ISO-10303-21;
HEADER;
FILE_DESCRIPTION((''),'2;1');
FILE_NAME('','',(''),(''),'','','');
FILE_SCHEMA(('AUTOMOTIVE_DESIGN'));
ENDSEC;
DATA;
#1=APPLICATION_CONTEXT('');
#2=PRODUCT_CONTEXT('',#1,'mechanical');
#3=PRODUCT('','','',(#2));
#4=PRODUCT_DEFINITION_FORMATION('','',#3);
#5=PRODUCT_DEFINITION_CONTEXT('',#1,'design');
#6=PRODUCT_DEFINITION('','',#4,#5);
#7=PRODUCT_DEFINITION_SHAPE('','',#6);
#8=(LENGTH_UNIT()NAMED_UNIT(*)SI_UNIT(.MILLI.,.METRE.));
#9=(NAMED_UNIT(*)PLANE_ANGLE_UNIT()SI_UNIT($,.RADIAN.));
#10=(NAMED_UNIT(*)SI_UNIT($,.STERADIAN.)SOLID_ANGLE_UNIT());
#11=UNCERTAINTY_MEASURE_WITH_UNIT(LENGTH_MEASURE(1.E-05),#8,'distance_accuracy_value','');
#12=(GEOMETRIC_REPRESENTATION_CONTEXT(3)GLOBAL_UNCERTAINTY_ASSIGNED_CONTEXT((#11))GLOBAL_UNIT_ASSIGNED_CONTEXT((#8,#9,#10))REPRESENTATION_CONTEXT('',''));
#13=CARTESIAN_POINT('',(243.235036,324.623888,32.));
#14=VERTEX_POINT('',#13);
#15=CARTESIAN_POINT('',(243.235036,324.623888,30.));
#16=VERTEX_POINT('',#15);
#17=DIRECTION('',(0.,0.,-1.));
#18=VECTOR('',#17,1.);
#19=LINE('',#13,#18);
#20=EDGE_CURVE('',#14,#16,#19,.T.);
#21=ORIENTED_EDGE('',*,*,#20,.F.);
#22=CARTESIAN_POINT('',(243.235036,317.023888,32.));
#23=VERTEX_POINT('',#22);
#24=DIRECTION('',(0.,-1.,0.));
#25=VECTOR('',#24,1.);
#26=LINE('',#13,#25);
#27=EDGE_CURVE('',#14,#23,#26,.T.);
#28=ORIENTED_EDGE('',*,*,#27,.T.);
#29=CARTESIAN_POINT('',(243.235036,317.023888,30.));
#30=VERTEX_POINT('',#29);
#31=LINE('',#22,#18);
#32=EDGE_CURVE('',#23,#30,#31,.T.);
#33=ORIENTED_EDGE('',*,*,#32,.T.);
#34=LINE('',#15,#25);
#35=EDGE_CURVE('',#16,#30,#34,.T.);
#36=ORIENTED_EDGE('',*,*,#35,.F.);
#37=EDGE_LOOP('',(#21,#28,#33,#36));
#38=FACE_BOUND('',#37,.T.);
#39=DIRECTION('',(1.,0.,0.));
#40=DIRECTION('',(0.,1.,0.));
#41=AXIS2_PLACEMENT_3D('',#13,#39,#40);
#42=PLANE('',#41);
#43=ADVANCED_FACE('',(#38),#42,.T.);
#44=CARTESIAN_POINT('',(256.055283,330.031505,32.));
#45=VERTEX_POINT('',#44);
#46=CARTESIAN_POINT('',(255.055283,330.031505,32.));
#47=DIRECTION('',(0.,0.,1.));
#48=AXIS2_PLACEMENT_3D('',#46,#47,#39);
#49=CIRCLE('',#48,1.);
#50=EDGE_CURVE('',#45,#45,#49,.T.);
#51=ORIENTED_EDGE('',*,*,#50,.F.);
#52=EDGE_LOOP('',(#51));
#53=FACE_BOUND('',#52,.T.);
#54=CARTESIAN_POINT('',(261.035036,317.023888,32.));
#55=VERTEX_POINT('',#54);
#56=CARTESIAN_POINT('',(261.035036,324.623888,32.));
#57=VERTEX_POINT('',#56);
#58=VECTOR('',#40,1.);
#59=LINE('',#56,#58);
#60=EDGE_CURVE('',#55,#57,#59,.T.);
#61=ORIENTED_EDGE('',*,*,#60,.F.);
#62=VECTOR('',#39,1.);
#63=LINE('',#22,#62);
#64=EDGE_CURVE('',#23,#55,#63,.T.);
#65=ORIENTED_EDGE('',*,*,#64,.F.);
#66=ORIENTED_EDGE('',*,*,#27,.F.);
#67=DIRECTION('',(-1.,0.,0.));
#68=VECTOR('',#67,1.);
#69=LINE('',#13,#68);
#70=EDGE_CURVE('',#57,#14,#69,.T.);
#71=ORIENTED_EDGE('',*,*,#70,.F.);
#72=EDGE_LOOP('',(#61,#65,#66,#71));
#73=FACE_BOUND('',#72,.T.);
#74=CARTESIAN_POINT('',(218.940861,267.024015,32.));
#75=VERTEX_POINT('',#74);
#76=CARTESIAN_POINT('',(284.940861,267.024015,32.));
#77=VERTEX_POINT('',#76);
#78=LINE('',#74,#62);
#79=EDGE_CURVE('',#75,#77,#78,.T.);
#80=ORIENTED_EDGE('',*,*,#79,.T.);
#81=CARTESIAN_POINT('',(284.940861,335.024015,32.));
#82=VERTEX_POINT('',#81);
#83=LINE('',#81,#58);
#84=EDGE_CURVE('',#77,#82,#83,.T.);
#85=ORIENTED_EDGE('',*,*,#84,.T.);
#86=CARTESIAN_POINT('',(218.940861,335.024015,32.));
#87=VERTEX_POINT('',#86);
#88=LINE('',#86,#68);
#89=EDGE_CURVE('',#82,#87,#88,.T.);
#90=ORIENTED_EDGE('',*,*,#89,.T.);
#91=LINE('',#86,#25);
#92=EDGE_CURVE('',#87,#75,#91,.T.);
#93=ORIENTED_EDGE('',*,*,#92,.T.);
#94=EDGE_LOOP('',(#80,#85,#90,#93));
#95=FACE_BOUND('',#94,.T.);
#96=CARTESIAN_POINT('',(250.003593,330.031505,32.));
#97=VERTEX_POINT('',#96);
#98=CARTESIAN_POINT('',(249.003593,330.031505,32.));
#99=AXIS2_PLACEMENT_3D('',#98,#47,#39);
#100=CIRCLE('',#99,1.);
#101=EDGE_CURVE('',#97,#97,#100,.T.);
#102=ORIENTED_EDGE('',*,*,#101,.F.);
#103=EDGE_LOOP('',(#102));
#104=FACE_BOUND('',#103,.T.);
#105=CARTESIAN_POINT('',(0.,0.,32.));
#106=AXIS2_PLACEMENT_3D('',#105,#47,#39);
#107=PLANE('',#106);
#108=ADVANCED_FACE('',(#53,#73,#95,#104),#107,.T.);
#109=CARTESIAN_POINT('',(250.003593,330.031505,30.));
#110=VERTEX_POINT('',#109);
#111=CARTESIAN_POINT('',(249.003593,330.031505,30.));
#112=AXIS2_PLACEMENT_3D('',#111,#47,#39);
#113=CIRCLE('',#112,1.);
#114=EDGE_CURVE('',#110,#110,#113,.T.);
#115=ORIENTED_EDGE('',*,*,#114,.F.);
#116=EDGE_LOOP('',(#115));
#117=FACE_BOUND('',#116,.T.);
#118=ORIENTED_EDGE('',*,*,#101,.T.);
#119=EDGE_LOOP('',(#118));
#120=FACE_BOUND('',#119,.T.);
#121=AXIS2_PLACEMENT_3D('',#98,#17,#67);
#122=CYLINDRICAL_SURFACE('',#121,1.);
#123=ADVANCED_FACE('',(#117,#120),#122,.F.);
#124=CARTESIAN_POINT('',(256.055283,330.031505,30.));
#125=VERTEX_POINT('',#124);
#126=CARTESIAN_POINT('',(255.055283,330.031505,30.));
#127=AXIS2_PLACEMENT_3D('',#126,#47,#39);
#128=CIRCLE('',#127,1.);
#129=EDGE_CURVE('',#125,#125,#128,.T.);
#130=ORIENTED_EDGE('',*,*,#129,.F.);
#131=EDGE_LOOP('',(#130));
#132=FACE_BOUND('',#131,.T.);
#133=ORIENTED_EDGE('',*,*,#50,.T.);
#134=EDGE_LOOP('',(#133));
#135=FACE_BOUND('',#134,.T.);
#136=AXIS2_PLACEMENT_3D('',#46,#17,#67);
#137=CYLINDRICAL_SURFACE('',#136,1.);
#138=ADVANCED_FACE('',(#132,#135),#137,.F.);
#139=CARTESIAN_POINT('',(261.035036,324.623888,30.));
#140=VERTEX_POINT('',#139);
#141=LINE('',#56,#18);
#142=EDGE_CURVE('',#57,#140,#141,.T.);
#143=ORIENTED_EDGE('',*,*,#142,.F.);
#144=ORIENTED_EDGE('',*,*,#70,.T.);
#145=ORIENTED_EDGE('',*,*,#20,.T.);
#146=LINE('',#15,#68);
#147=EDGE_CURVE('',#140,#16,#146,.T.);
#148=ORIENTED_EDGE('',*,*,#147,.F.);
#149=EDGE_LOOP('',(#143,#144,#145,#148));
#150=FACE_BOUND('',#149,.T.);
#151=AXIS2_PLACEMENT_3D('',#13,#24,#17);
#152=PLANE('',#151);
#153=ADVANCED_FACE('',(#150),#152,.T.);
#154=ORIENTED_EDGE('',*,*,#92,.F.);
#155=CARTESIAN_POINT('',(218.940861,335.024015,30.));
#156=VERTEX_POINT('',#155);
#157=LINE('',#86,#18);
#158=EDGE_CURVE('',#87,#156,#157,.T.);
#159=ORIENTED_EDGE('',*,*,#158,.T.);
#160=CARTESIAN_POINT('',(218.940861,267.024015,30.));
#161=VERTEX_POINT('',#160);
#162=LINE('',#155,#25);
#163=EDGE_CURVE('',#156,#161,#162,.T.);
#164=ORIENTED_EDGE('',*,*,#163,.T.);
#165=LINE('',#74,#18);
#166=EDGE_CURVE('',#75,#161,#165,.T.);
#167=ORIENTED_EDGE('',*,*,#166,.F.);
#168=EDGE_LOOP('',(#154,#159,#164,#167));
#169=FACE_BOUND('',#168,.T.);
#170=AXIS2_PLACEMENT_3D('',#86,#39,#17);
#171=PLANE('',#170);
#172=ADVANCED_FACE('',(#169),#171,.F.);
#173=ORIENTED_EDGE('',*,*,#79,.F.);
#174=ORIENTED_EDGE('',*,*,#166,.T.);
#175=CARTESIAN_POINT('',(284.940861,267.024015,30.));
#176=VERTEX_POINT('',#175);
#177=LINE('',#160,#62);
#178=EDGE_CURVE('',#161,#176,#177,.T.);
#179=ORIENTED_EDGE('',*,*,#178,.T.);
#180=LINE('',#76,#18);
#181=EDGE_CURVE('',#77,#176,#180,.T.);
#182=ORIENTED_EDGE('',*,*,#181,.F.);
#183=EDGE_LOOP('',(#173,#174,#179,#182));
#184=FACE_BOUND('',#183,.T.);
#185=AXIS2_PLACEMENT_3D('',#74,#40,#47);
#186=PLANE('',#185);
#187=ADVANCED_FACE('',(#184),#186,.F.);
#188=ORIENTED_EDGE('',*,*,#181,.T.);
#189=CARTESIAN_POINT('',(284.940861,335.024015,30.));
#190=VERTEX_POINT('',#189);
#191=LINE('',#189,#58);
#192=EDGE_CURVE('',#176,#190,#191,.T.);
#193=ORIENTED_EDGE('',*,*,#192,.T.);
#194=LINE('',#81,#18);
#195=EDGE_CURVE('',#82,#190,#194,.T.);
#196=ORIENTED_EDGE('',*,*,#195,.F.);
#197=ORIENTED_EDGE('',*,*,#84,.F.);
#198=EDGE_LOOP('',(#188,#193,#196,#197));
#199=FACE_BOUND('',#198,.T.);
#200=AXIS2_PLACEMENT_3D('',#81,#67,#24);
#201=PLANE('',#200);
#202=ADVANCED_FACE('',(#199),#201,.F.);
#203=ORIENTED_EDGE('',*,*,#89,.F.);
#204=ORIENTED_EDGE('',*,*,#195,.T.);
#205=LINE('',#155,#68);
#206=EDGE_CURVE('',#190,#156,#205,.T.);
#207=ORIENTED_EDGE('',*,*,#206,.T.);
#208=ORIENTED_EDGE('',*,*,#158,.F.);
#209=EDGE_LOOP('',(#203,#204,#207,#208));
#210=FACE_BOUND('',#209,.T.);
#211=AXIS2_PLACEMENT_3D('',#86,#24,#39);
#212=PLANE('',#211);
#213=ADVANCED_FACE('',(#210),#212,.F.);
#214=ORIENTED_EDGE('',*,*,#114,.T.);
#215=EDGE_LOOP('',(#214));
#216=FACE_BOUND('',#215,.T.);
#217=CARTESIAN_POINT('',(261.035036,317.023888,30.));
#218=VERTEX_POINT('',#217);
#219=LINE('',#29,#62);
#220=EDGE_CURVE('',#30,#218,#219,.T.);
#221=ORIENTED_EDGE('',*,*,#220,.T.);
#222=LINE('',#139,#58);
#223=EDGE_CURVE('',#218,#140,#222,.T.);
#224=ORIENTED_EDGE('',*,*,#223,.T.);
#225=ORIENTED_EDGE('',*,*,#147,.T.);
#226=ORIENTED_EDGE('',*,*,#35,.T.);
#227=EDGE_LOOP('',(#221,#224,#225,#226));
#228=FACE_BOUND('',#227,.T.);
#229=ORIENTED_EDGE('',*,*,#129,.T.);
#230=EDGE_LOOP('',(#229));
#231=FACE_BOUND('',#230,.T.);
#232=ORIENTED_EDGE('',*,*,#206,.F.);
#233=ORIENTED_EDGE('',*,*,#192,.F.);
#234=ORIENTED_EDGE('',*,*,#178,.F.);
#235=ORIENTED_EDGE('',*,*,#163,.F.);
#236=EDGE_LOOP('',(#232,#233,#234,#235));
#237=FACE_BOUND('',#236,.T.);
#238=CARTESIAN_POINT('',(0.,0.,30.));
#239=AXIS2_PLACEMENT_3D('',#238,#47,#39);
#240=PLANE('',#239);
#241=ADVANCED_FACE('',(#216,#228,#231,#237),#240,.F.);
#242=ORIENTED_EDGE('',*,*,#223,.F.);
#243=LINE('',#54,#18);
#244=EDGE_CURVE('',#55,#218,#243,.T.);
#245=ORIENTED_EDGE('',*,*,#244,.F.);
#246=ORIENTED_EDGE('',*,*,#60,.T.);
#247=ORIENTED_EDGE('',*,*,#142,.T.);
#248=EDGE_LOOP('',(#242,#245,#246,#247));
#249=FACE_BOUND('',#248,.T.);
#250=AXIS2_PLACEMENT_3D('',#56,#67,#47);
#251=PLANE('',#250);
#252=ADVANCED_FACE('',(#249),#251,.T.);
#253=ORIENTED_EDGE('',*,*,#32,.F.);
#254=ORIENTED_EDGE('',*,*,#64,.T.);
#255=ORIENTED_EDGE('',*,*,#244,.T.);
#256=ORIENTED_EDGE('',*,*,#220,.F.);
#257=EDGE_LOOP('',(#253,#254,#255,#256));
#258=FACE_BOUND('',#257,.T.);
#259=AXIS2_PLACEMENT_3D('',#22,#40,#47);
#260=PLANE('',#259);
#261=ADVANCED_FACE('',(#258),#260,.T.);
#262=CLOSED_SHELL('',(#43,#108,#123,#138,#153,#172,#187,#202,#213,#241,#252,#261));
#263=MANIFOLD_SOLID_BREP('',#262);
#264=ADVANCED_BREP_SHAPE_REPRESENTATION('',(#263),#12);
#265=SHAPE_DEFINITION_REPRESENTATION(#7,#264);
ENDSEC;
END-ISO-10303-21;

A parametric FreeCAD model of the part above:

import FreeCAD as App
import Part
import Sketcher
Q = App.Units.Quantity

doc = App.newDocument("Part")
body = doc.addObject("PartDesign::Body", "Body")

sketch1 = doc.addObject("Sketcher::SketchObject", "Sketch")
body.addObject(sketch1)
sketch1.AttachmentSupport = (doc.XY_Plane, [""])
sketch1.MapMode = "FlatFace"
sketch1.AttachmentOffset = App.Placement(App.Vector(0, 0, 30), App.Rotation())
sketch1.addGeometry([
    Part.LineSegment(App.Vector(218.940861, 335.024015, 0), App.Vector(218.940861, 267.024015, 0)),
    Part.LineSegment(App.Vector(218.940861, 267.024015, 0), App.Vector(284.940861, 267.024015, 0)),
    Part.LineSegment(App.Vector(284.940861, 267.024015, 0), App.Vector(284.940861, 335.024015, 0)),
    Part.LineSegment(App.Vector(284.940861, 335.024015, 0), App.Vector(218.940861, 335.024015, 0)),
    Part.LineSegment(App.Vector(261.035036, 317.023888, 0), App.Vector(243.235036, 317.023888, 0)),
    Part.LineSegment(App.Vector(243.235036, 317.023888, 0), App.Vector(243.235036, 324.623888, 0)),
    Part.LineSegment(App.Vector(243.235036, 324.623888, 0), App.Vector(261.035036, 324.623888, 0)),
    Part.LineSegment(App.Vector(261.035036, 324.623888, 0), App.Vector(261.035036, 317.023888, 0)),
    Part.Circle(App.Vector(249.003593, 330.031505, 0), App.Vector(0, 0, 1), 1),
    Part.Circle(App.Vector(255.055283, 330.031505, 0), App.Vector(0, 0, 1), 1),
], False)
sketch1.addConstraint([
    Sketcher.Constraint("Coincident", 0, 2, 1, 1),
    Sketcher.Constraint("Coincident", 1, 2, 2, 1),
    Sketcher.Constraint("Coincident", 2, 2, 3, 1),
    Sketcher.Constraint("Coincident", 3, 2, 0, 1),
    Sketcher.Constraint("Coincident", 4, 2, 5, 1),
    Sketcher.Constraint("Coincident", 5, 2, 6, 1),
    Sketcher.Constraint("Coincident", 6, 2, 7, 1),
    Sketcher.Constraint("Coincident", 7, 2, 4, 1),
    Sketcher.Constraint("Vertical", 0),
    Sketcher.Constraint("Horizontal", 1),
    Sketcher.Constraint("Vertical", 2),
    Sketcher.Constraint("Horizontal", 3),
    Sketcher.Constraint("Horizontal", 4),
    Sketcher.Constraint("Vertical", 5),
    Sketcher.Constraint("Horizontal", 6),
    Sketcher.Constraint("Vertical", 7),
    Sketcher.Constraint("Equal", 8, 9),
    Sketcher.Constraint("Horizontal", 8, 3, 9, 3),
    Sketcher.Constraint("Diameter", 8, Q("2 mm")),
    Sketcher.Constraint("DistanceX", 1, 1, 1, 2, Q("66 mm")),
    Sketcher.Constraint("DistanceY", 0, 2, 0, 1, Q("68 mm")),
    Sketcher.Constraint("DistanceX", 4, 2, 4, 1, Q("17.8 mm")),
    Sketcher.Constraint("DistanceY", 5, 1, 5, 2, Q("7.6 mm")),
    Sketcher.Constraint("DistanceX", -1, 1, 0, 2, Q("218.940861 mm")),
    Sketcher.Constraint("DistanceY", -1, 1, 4, 2, Q("317.023888 mm")),
    Sketcher.Constraint("DistanceX", 8, 3, 9, 3, Q("6.05169 mm")),
    Sketcher.Constraint("DistanceX", 0, 2, 8, 3, Q("30.062732 mm")),
    Sketcher.Constraint("DistanceY", 0, 2, 8, 3, Q("63.007491 mm")),
    Sketcher.Constraint("DistanceY", -1, 1, 8, 3, Q("330.031505 mm")),
    Sketcher.Constraint("DistanceX", -1, 1, 4, 2, Q("243.235036 mm")),
])
pad1 = doc.addObject("PartDesign::Pad", "Pad")
body.addObject(pad1)
pad1.Profile = sketch1
pad1.Length = 2

doc.recompute()
